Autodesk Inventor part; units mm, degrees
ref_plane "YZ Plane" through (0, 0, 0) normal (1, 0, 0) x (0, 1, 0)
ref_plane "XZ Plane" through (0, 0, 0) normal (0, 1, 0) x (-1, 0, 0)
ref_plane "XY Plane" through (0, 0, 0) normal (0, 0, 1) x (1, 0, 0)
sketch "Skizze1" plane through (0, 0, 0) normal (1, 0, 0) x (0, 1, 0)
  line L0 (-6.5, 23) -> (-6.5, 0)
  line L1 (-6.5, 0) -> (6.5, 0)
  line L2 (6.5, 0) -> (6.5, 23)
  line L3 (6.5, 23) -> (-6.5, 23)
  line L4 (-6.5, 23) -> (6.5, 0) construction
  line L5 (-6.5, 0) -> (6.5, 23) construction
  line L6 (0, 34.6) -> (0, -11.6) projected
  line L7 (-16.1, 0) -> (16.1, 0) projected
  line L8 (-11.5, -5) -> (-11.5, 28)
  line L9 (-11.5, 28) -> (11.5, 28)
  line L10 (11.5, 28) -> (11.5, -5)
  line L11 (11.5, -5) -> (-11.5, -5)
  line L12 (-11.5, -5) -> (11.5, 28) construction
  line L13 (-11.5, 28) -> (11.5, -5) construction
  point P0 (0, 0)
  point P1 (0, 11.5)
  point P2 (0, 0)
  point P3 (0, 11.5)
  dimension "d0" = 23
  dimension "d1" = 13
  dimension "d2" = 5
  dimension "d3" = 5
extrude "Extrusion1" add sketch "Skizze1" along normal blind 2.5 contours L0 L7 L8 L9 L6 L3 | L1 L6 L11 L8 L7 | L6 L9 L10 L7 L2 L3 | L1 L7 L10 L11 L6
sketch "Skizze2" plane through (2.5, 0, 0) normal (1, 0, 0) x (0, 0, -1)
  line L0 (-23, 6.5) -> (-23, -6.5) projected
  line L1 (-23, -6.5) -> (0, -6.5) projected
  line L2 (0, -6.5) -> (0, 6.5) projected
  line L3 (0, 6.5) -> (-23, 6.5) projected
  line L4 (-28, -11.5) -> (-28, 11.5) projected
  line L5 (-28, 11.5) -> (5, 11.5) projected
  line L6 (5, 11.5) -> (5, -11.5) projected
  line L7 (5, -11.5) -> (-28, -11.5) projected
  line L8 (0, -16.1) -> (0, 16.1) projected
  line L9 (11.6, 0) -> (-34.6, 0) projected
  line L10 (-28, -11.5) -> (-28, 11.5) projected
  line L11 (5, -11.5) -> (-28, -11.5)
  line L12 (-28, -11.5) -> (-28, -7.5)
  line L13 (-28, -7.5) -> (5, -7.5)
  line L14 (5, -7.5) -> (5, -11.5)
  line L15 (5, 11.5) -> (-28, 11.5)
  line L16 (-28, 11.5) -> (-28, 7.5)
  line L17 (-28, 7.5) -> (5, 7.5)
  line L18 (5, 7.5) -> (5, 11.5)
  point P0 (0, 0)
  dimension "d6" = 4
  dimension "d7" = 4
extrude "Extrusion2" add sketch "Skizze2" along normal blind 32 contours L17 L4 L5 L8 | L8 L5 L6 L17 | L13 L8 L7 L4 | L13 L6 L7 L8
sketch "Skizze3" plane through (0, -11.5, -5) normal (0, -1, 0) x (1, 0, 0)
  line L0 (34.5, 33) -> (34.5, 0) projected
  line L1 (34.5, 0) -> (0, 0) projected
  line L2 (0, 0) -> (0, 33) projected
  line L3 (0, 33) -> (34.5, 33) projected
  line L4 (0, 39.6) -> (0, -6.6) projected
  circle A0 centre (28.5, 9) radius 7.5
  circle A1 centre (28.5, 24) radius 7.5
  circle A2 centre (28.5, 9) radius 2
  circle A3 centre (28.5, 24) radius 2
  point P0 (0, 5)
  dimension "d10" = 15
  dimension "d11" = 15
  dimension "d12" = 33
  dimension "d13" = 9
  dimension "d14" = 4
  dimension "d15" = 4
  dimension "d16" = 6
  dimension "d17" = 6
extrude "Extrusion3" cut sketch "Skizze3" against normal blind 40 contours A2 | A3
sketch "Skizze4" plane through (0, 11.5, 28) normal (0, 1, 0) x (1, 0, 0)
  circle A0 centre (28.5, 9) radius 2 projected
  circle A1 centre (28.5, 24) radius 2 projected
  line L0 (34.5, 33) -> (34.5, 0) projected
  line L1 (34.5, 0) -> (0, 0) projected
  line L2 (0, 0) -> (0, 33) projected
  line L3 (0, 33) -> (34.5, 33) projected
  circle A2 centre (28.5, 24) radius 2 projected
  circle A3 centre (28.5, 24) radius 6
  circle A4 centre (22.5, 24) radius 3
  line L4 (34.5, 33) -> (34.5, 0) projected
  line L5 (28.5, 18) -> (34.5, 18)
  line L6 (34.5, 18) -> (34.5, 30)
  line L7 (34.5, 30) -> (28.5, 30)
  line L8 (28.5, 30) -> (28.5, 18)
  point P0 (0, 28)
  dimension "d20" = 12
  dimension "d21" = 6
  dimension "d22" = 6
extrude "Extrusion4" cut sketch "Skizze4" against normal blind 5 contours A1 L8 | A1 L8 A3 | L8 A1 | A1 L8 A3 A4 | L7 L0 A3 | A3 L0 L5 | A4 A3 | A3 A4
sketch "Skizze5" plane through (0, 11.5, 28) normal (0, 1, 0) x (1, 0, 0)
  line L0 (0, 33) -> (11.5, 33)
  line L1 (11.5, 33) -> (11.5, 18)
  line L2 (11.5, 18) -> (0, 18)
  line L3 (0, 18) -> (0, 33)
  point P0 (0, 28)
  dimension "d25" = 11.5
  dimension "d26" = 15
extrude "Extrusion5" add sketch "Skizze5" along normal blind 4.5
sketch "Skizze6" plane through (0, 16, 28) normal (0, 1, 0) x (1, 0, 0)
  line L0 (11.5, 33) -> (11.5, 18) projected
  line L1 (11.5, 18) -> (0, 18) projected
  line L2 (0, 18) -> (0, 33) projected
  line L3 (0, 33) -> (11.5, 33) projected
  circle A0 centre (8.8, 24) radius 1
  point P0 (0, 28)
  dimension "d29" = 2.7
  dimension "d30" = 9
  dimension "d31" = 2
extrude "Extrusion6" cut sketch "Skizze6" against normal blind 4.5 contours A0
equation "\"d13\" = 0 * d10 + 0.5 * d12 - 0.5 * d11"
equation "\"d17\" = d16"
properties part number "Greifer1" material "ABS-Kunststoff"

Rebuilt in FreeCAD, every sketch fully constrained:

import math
import FreeCAD as App
import Part
import Sketcher
Q = App.Units.Quantity

doc = App.newDocument("Part")
body = doc.addObject("PartDesign::Body", "Body")

sketch1 = body.newObject("Sketcher::SketchObject", "Sketch")
sketch1.AttachmentSupport = (doc.getObject("YZ_Plane"), [""])
sketch1.MapMode = "FlatFace"
sketch1.addGeometry([
    Part.LineSegment(App.Vector(-12, 28, 0), App.Vector(-12, -5, 0)),
    Part.LineSegment(App.Vector(-12, -5, 0), App.Vector(12, -5, 0)),
    Part.LineSegment(App.Vector(12, -5, 0), App.Vector(12, 28, 0)),
    Part.LineSegment(App.Vector(12, 28, 0), App.Vector(-12, 28, 0)),
    Part.LineSegment(App.Vector(-6, 0, 0), App.Vector(-6, 23, 0)),
    Part.LineSegment(App.Vector(-6, 23, 0), App.Vector(6, 23, 0)),
    Part.LineSegment(App.Vector(6, 23, 0), App.Vector(6, 0, 0)),
    Part.LineSegment(App.Vector(6, 0, 0), App.Vector(-6, 0, 0)),
], False)
sketch1.addConstraint([
    Sketcher.Constraint("Coincident", 0, 2, 1, 1),
    Sketcher.Constraint("Coincident", 1, 2, 2, 1),
    Sketcher.Constraint("Coincident", 2, 2, 3, 1),
    Sketcher.Constraint("Coincident", 3, 2, 0, 1),
    Sketcher.Constraint("Coincident", 4, 2, 5, 1),
    Sketcher.Constraint("Coincident", 5, 2, 6, 1),
    Sketcher.Constraint("Coincident", 6, 2, 7, 1),
    Sketcher.Constraint("Coincident", 7, 2, 4, 1),
    Sketcher.Constraint("Vertical", 0),
    Sketcher.Constraint("Horizontal", 1),
    Sketcher.Constraint("Vertical", 2),
    Sketcher.Constraint("Horizontal", 3),
    Sketcher.Constraint("Vertical", 4),
    Sketcher.Constraint("Horizontal", 5),
    Sketcher.Constraint("Vertical", 6),
    Sketcher.Constraint("Horizontal", 7),
    Sketcher.Constraint("Symmetric", 6, 2, 7, 2, -1, 1),
    Sketcher.Constraint("Equal", 3, 4),
    Sketcher.Constraint("DistanceX", 1, 1, 1, 2, Q("23 mm")),
    Sketcher.Constraint("DistanceX", 5, 1, 5, 2, Q("13 mm")),
    Sketcher.Constraint("DistanceY", 0, 2, -1, 1, Q("5 mm")),
    Sketcher.Constraint("DistanceX", 3, 2, 4, 2, Q("5 mm")),
    Sketcher.Constraint("DistanceY", 4, 2, 3, 2, Q("5 mm")),
])
pad1 = body.newObject("PartDesign::Pad", "Pad")
pad1.Profile = sketch1
pad1.Length = 2.5

sketch2 = body.newObject("Sketcher::SketchObject", "Sketch001")
sketch2.AttachmentSupport = (doc.getObject("YZ_Plane"), [""])
sketch2.MapMode = "FlatFace"
sketch2.AttachmentOffset = App.Placement(App.Vector(0, 0, 2.5), App.Rotation())
sketch2.addGeometry([
    Part.LineSegment(App.Vector(7.5, 28, 0), App.Vector(7.5, -5, 0)),
    Part.LineSegment(App.Vector(7.5, -5, 0), App.Vector(11.5, -5, 0)),
    Part.LineSegment(App.Vector(11.5, -5, 0), App.Vector(11.5, 28, 0)),
    Part.LineSegment(App.Vector(11.5, 28, 0), App.Vector(7.5, 28, 0)),
    Part.LineSegment(App.Vector(-7.5, 28, 0), App.Vector(-11.5, 28, 0)),
    Part.LineSegment(App.Vector(-11.5, 28, 0), App.Vector(-11.5, -5, 0)),
    Part.LineSegment(App.Vector(-11.5, -5, 0), App.Vector(-7.5, -5, 0)),
    Part.LineSegment(App.Vector(-7.5, -5, 0), App.Vector(-7.5, 28, 0)),
], False)
sketch2.addConstraint([
    Sketcher.Constraint("Coincident", 0, 2, 1, 1),
    Sketcher.Constraint("Coincident", 1, 2, 2, 1),
    Sketcher.Constraint("Coincident", 2, 2, 3, 1),
    Sketcher.Constraint("Coincident", 3, 2, 0, 1),
    Sketcher.Constraint("Coincident", 4, 2, 5, 1),
    Sketcher.Constraint("Coincident", 5, 2, 6, 1),
    Sketcher.Constraint("Coincident", 6, 2, 7, 1),
    Sketcher.Constraint("Coincident", 7, 2, 4, 1),
    Sketcher.Constraint("Vertical", 0),
    Sketcher.Constraint("Horizontal", 1),
    Sketcher.Constraint("Vertical", 2),
    Sketcher.Constraint("Horizontal", 3),
    Sketcher.Constraint("Horizontal", 4),
    Sketcher.Constraint("Vertical", 5),
    Sketcher.Constraint("Horizontal", 6),
    Sketcher.Constraint("Vertical", 7),
    Sketcher.Constraint("Symmetric", 2, 2, 4, 2, -2),
    Sketcher.Constraint("Symmetric", 0, 2, 6, 2, -2),
    Sketcher.Constraint("DistanceX", 1, 1, 1, 2, Q("4 mm")),
    Sketcher.Constraint("DistanceY", 0, 2, 0, 1, Q("33 mm")),
    Sketcher.Constraint("DistanceY", 0, 2, -1, 1, Q("5 mm")),
    Sketcher.Constraint("DistanceX", 4, 2, 3, 2, Q("19 mm")),
])
pad2 = body.newObject("PartDesign::Pad", "Pad001")
pad2.Profile = sketch2
pad2.Length = 32

sketch3 = body.newObject("Sketcher::SketchObject", "Sketch002")
sketch3.AttachmentSupport = (doc.getObject("XZ_Plane"), [""])
sketch3.MapMode = "FlatFace"
sketch3.AttachmentOffset = App.Placement(App.Vector(0, 0, 11.5), App.Rotation())
sketch3.addGeometry([
    Part.Circle(App.Vector(28.5, 4, 0), App.Vector(0, 0, 1), 2),
    Part.Circle(App.Vector(28.5, 19, 0), App.Vector(0, 0, 1), 2),
], False)
sketch3.addConstraint([
    Sketcher.Constraint("Equal", 0, 1),
    Sketcher.Constraint("Vertical", 0, 3, 1, 3),
    Sketcher.Constraint("Diameter", 0, Q("4 mm")),
    Sketcher.Constraint("DistanceY", -1, 1, 0, 3, Q("4 mm")),
    Sketcher.Constraint("DistanceY", 0, 3, 1, 3, Q("15 mm")),
    Sketcher.Constraint("DistanceX", -1, 1, 0, 3, Q("28.5 mm")),
])
pocket1 = body.newObject("PartDesign::Pocket", "Pocket")
pocket1.Profile = sketch3
pocket1.Length = 40

sketch4 = body.newObject("Sketcher::SketchObject", "Sketch003")
sketch4.AttachmentSupport = (doc.getObject("XZ_Plane"), [""])
sketch4.MapMode = "FlatFace"
sketch4.AttachmentOffset = App.Placement(App.Vector(0, 0, -11.5), App.Rotation())
sketch4.addGeometry([
    Part.ArcOfCircle(Part.Circle(App.Vector(28.5, 4, 0), App.Vector(0, 0, 1), 6), math.radians(-151), math.radians(-90)),
    Part.ArcOfCircle(Part.Circle(App.Vector(22.5, 4, 0), App.Vector(0, 0, 1), 3), math.radians(76), math.radians(284)),
    Part.ArcOfCircle(Part.Circle(App.Vector(28.5, 4, 0), App.Vector(0, 0, 1), 6), math.radians(90), math.radians(151)),
    Part.LineSegment(App.Vector(28.5, 10, 0), App.Vector(34.5, 10, 0)),
    Part.LineSegment(App.Vector(34.5, 10, 0), App.Vector(34.5, -2, 0)),
    Part.LineSegment(App.Vector(34.5, -2, 0), App.Vector(28.5, -2, 0)),
], False)
sketch4.addConstraint([
    Sketcher.Constraint("Coincident", 0, 1, 1, 2),
    Sketcher.Constraint("Coincident", 1, 1, 2, 2),
    Sketcher.Constraint("Tangent", 2, 1, 3, 1),
    Sketcher.Constraint("Coincident", 3, 2, 4, 1),
    Sketcher.Constraint("Coincident", 4, 2, 5, 1),
    Sketcher.Constraint("Tangent", 5, 2, 0, 2),
    Sketcher.Constraint("Horizontal", 3),
    Sketcher.Constraint("Vertical", 4),
    Sketcher.Constraint("Horizontal", 5),
    Sketcher.Constraint("Coincident", 2, 3, 0, 3),
    Sketcher.Constraint("Equal", 0, 2),
    Sketcher.Constraint("Horizontal", 0, 3, 1, 3),
    Sketcher.Constraint("Radius", 0, Q("6 mm")),
    Sketcher.Constraint("Radius", 1, Q("3 mm")),
    Sketcher.Constraint("DistanceX", 3, 1, 3, 2, Q("6 mm")),
    Sketcher.Constraint("DistanceX", 1, 3, 0, 3, Q("6 mm")),
    Sketcher.Constraint("DistanceY", -1, 1, 0, 3, Q("4 mm")),
    Sketcher.Constraint("DistanceX", -1, 1, 0, 3, Q("28.5 mm")),
])
pocket2 = body.newObject("PartDesign::Pocket", "Pocket001")
pocket2.Profile = sketch4
pocket2.Length = 5
pocket2.Reversed = True

sketch5 = body.newObject("Sketcher::SketchObject", "Sketch004")
sketch5.AttachmentSupport = (doc.getObject("XZ_Plane"), [""])
sketch5.MapMode = "FlatFace"
sketch5.AttachmentOffset = App.Placement(App.Vector(0, 0, -11.5), App.Rotation())
sketch5.addGeometry([
    Part.LineSegment(App.Vector(12, -5, 0), App.Vector(0, -5, 0)),
    Part.LineSegment(App.Vector(0, -5, 0), App.Vector(0, 10, 0)),
    Part.LineSegment(App.Vector(0, 10, 0), App.Vector(12, 10, 0)),
    Part.LineSegment(App.Vector(12, 10, 0), App.Vector(12, -5, 0)),
], False)
sketch5.addConstraint([
    Sketcher.Constraint("Coincident", 0, 2, 1, 1),
    Sketcher.Constraint("Coincident", 1, 2, 2, 1),
    Sketcher.Constraint("Coincident", 2, 2, 3, 1),
    Sketcher.Constraint("Coincident", 3, 2, 0, 1),
    Sketcher.Constraint("Horizontal", 0),
    Sketcher.Constraint("Vertical", 1),
    Sketcher.Constraint("Horizontal", 2),
    Sketcher.Constraint("Vertical", 3),
    Sketcher.Constraint("PointOnObject", 0, 2, -2),
    Sketcher.Constraint("DistanceY", 1, 1, 1, 2, Q("15 mm")),
    Sketcher.Constraint("DistanceX", 0, 2, 0, 1, Q("11.5 mm")),
    Sketcher.Constraint("DistanceY", 0, 2, -1, 1, Q("5 mm")),
])
pad3 = body.newObject("PartDesign::Pad", "Pad002")
pad3.Profile = sketch5
pad3.Length = 4.5
pad3.Reversed = True

sketch6 = body.newObject("Sketcher::SketchObject", "Sketch005")
sketch6.AttachmentSupport = (doc.getObject("XZ_Plane"), [""])
sketch6.MapMode = "FlatFace"
sketch6.AttachmentOffset = App.Placement(App.Vector(0, 0, -16), App.Rotation())
sketch6.addGeometry(Part.Circle(App.Vector(8.8, 4, 0), App.Vector(0, 0, 1), 1), False)
sketch6.addConstraint([
    Sketcher.Constraint("Diameter", 0, Q("2 mm")),
    Sketcher.Constraint("DistanceY", -1, 1, 0, 3, Q("4 mm")),
    Sketcher.Constraint("DistanceX", -1, 1, 0, 3, Q("8.8 mm")),
])
pocket3 = body.newObject("PartDesign::Pocket", "Pocket002")
pocket3.Profile = sketch6
pocket3.Length = 4.5
pocket3.Reversed = True

doc.recompute()
